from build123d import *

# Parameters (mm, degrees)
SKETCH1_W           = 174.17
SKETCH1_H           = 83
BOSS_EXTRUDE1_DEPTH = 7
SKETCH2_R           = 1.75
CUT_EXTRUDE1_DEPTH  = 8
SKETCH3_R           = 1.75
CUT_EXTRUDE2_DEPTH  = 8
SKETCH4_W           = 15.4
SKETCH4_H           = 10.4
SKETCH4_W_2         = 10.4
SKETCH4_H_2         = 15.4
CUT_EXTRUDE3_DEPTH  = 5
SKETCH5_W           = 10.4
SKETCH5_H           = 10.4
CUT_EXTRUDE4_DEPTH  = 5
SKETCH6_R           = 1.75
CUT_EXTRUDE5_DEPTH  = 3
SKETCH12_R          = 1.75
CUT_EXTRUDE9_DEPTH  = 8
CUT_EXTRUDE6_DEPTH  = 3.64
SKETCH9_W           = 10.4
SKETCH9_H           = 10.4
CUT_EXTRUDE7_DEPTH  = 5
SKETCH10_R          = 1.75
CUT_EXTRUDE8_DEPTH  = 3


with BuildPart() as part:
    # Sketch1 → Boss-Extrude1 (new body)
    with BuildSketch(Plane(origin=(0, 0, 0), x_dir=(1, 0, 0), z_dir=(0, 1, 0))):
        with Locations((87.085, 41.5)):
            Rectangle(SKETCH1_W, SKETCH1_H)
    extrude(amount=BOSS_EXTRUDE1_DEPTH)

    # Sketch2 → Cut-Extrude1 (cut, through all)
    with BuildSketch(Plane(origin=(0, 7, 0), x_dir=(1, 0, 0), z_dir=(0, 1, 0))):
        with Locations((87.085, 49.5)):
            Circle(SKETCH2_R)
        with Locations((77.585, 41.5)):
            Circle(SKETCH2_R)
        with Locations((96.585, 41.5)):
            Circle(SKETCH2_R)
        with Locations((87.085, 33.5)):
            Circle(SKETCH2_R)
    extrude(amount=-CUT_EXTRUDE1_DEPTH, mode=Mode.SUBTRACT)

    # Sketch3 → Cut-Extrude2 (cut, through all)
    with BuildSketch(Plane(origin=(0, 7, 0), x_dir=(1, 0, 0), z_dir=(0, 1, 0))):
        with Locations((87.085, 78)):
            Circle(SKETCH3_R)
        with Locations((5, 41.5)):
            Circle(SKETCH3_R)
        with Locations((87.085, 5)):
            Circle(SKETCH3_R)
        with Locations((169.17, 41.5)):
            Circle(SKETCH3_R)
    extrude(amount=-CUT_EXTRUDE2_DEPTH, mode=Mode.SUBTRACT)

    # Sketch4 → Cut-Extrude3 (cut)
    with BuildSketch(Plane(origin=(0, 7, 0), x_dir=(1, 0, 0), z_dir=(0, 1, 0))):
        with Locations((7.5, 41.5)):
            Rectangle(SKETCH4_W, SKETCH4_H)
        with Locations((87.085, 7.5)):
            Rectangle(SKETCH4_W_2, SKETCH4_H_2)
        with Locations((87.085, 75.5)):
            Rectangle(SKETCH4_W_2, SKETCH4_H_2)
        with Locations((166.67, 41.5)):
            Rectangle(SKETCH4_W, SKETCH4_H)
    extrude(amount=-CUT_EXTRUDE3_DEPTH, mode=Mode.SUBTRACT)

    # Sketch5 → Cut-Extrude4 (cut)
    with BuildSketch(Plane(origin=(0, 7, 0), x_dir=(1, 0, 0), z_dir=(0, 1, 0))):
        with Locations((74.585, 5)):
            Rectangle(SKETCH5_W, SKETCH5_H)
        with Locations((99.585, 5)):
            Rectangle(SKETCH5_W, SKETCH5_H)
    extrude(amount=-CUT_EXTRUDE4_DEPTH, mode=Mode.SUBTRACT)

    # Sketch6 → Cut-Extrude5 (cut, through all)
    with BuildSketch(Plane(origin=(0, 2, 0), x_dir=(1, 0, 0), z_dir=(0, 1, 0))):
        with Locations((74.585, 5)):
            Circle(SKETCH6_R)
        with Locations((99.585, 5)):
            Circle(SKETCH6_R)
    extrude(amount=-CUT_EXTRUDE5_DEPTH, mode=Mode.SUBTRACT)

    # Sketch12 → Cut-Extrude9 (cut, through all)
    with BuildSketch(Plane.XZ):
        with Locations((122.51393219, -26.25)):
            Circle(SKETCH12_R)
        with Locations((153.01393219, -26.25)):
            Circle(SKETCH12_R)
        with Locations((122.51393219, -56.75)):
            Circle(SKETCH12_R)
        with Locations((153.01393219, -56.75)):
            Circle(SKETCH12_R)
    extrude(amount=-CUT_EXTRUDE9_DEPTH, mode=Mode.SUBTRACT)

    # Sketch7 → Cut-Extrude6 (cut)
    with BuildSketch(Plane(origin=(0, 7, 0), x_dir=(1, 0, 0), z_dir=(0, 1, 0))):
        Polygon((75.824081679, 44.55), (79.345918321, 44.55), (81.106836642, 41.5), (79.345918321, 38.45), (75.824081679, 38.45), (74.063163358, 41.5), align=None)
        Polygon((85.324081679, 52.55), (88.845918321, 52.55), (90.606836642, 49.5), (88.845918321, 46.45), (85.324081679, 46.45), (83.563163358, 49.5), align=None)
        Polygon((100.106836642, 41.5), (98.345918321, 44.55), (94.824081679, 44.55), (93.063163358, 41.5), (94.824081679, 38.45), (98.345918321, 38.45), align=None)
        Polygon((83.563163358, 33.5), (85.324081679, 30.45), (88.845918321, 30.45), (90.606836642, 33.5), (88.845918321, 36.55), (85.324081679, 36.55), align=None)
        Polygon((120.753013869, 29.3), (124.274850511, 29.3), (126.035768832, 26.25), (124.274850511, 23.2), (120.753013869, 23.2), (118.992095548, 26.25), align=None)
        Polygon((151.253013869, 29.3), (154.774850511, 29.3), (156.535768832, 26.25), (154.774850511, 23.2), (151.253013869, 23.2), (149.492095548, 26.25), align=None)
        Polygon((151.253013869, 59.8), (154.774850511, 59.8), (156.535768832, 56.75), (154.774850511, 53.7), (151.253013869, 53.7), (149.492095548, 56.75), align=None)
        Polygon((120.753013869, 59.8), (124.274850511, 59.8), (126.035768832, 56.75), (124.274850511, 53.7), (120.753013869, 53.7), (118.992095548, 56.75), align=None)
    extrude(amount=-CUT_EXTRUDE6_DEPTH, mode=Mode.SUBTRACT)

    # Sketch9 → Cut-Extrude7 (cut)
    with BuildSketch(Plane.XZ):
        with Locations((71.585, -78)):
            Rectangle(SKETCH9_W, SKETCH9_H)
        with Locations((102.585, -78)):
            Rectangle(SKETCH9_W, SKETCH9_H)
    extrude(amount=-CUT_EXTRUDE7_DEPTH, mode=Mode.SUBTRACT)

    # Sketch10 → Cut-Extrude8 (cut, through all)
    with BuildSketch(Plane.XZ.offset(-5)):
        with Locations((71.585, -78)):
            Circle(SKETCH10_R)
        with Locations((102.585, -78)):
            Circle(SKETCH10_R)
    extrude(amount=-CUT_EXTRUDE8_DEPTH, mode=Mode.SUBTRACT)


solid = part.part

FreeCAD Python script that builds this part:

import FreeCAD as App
import Part
import Sketcher
from FreeCAD import Vector
Q = App.Units.Quantity


def add_polygon(sketch, points):
    """Adds a closed chain of lines whose ends are joined by coincident constraints."""
    first, n = sketch.GeometryCount, len(points)
    for a, b in zip(points, points[1:] + points[:1]):
        sketch.addGeometry(Part.LineSegment(App.Vector(*a, 0), App.Vector(*b, 0)), False)
    for i in range(n):
        sketch.addConstraint(Sketcher.Constraint("Coincident", first + i, 2, first + (i + 1) % n, 1))

doc = App.newDocument("Part")
body = doc.addObject("PartDesign::Body", "Body")

# Sketch on XZ plane
sketch1 = body.newObject("Sketcher::SketchObject", "Sketch")
sketch1.AttachmentSupport = (doc.getObject("XZ_Plane"), [""])
sketch1.MapMode = "FlatFace"
add_polygon(sketch1, [(0, -83), (0, 0), (174.17, 0), (174.17, -83)])  # lines 0-3
sketch1.addConstraint([
    Sketcher.Constraint("Vertical", 0),
    Sketcher.Constraint("Horizontal", 1),
    Sketcher.Constraint("Vertical", 2),
    Sketcher.Constraint("Horizontal", 3),
    Sketcher.Constraint("Coincident", 0, 2, -1, 1),
    Sketcher.Constraint("DistanceY", 0, 1, 0, 2, Q("83 mm")),
    Sketcher.Constraint("DistanceX", 1, 1, 1, 2, Q("174.17 mm")),
])
pad1 = body.newObject("PartDesign::Pad", "Pad")
pad1.Profile = sketch1
pad1.Length = 7
pad1.Reversed = True

# Sketch on XZ plane
sketch2 = body.newObject("Sketcher::SketchObject", "Sketch001")
sketch2.AttachmentSupport = (doc.getObject("XZ_Plane"), [""])
sketch2.MapMode = "FlatFace"
sketch2.AttachmentOffset = App.Placement(Vector(0, 0, -7), App.Rotation())
sketch2.addGeometry([
    Part.Circle(Vector(87.085, -49.5, 0), Vector(0, 0, 1), 1.75),
    Part.Circle(Vector(77.585, -41.5, 0), Vector(0, 0, 1), 1.75),
    Part.Circle(Vector(96.585, -41.5, 0), Vector(0, 0, 1), 1.75),
    Part.Circle(Vector(87.085, -33.5, 0), Vector(0, 0, 1), 1.75),
], False)
sketch2.addConstraint([
    Sketcher.Constraint("Equal", 0, 1),
    Sketcher.Constraint("Equal", 1, 2),
    Sketcher.Constraint("Equal", 2, 3),
    Sketcher.Constraint("Horizontal", 1, 3, 2, 3),
    Sketcher.Constraint("Vertical", 0, 3, 3, 3),
    Sketcher.Constraint("Diameter", 0, Q("3.5 mm")),
    Sketcher.Constraint("DistanceY", 0, 3, 1, 3, Q("8 mm")),
    Sketcher.Constraint("DistanceX", 1, 3, 2, 3, Q("19 mm")),
    Sketcher.Constraint("DistanceY", 1, 3, 3, 3, Q("8 mm")),
    Sketcher.Constraint("DistanceY", 0, 3, -1, 1, Q("49.5 mm")),
    Sketcher.Constraint("DistanceX", 1, 3, 0, 3, Q("9.5 mm")),
    Sketcher.Constraint("DistanceX", -1, 1, 0, 3, Q("87.085 mm")),
])
pocket1 = body.newObject("PartDesign::Pocket", "Pocket")
pocket1.Profile = sketch2
pocket1.Type = "ThroughAll"
pocket1.Reversed = True

# Sketch on XZ plane
sketch3 = body.newObject("Sketcher::SketchObject", "Sketch002")
sketch3.AttachmentSupport = (doc.getObject("XZ_Plane"), [""])
sketch3.MapMode = "FlatFace"
sketch3.AttachmentOffset = App.Placement(Vector(0, 0, -7), App.Rotation())
sketch3.addGeometry([
    Part.Circle(Vector(87.085, -78, 0), Vector(0, 0, 1), 1.75),
    Part.Circle(Vector(5, -41.5, 0), Vector(0, 0, 1), 1.75),
    Part.Circle(Vector(87.085, -5, 0), Vector(0, 0, 1), 1.75),
    Part.Circle(Vector(169.17, -41.5, 0), Vector(0, 0, 1), 1.75),
], False)
sketch3.addConstraint([
    Sketcher.Constraint("Equal", 0, 1),
    Sketcher.Constraint("Equal", 1, 2),
    Sketcher.Constraint("Equal", 2, 3),
    Sketcher.Constraint("Horizontal", 1, 3, 3, 3),
    Sketcher.Constraint("Vertical", 0, 3, 2, 3),
    Sketcher.Constraint("Diameter", 0, Q("3.5 mm")),
    Sketcher.Constraint("DistanceY", 0, 3, -1, 1, Q("78 mm")),
    Sketcher.Constraint("DistanceX", -1, 1, 1, 3, Q("5 mm")),
    Sketcher.Constraint("DistanceY", 2, 3, -1, 1, Q("5 mm")),
    Sketcher.Constraint("DistanceY", 1, 3, -1, 1, Q("41.5 mm")),
    Sketcher.Constraint("DistanceX", -1, 1, 3, 3, Q("169.17 mm")),
    Sketcher.Constraint("DistanceX", -1, 1, 0, 3, Q("87.085 mm")),
])
pocket2 = body.newObject("PartDesign::Pocket", "Pocket001")
pocket2.Profile = sketch3
pocket2.Type = "ThroughAll"
pocket2.Reversed = True

# Sketch on XZ plane
sketch4 = body.newObject("Sketcher::SketchObject", "Sketch003")
sketch4.AttachmentSupport = (doc.getObject("XZ_Plane"), [""])
sketch4.MapMode = "FlatFace"
sketch4.AttachmentOffset = App.Placement(Vector(0, 0, -7), App.Rotation())
add_polygon(sketch4, [(-0.2, -46.7), (-0.2, -36.3), (15.2, -36.3), (15.2, -46.7)])  # lines 0-3
add_polygon(sketch4, [(81.885, -15.2), (81.885, 0.2), (92.285, 0.2), (92.285, -15.2)])  # lines 4-7
add_polygon(sketch4, [(81.885, -83.2), (81.885, -67.8), (92.285, -67.8), (92.285, -83.2)])  # lines 8-11
add_polygon(sketch4, [(158.97, -46.7), (158.97, -36.3), (174.37, -36.3), (174.37, -46.7)])  # lines 12-15
sketch4.addConstraint([
    Sketcher.Constraint("Vertical", 0),
    Sketcher.Constraint("Horizontal", 1),
    Sketcher.Constraint("Vertical", 2),
    Sketcher.Constraint("Horizontal", 3),
    Sketcher.Constraint("Vertical", 4),
    Sketcher.Constraint("Horizontal", 5),
    Sketcher.Constraint("Vertical", 6),
    Sketcher.Constraint("Horizontal", 7),
    Sketcher.Constraint("Vertical", 8),
    Sketcher.Constraint("Horizontal", 9),
    Sketcher.Constraint("Vertical", 10),
    Sketcher.Constraint("Horizontal", 11),
    Sketcher.Constraint("Vertical", 12),
    Sketcher.Constraint("Horizontal", 13),
    Sketcher.Constraint("Vertical", 14),
    Sketcher.Constraint("Horizontal", 15),
    Sketcher.Constraint("Horizontal", 1, 2, 12, 2),
    Sketcher.Constraint("Horizontal", 3, 2, 14, 2),
    Sketcher.Constraint("Vertical", 7, 2, 8, 2),
    Sketcher.Constraint("Vertical", 6, 2, 9, 2),
    Sketcher.Constraint("Equal", 3, 13),
    Sketcher.Constraint("Equal", 11, 0),
    Sketcher.Constraint("Equal", 15, 4),
    Sketcher.Constraint("Equal", 6, 8),
    Sketcher.Constraint("DistanceX", 1, 1, 1, 2, Q("15.4 mm")),
    Sketcher.Constraint("DistanceX", 5, 1, 5, 2, Q("10.4 mm")),
    Sketcher.Constraint("DistanceY", 8, 2, 4, 2, Q("68 mm")),
    Sketcher.Constraint("DistanceX", 0, 2, -1, 1, Q("0.2 mm")),
    Sketcher.Constraint("DistanceY", 0, 2, -1, 1, Q("36.3 mm")),
    Sketcher.Constraint("DistanceY", -1, 1, 4, 2, Q("0.2 mm")),
    Sketcher.Constraint("DistanceX", -1, 1, 12, 2, Q("158.97 mm")),
    Sketcher.Constraint("DistanceX", -1, 1, 4, 2, Q("81.885 mm")),
])
pocket3 = body.newObject("PartDesign::Pocket", "Pocket002")
pocket3.Profile = sketch4
pocket3.Length = 5
pocket3.Reversed = True

# Sketch on XZ plane
sketch5 = body.newObject("Sketcher::SketchObject", "Sketch004")
sketch5.AttachmentSupport = (doc.getObject("XZ_Plane"), [""])
sketch5.MapMode = "FlatFace"
sketch5.AttachmentOffset = App.Placement(Vector(0, 0, -7), App.Rotation())
add_polygon(sketch5, [(69.385, -10.2), (69.385, 0.2), (79.785, 0.2), (79.785, -10.2)])  # lines 0-3
add_polygon(sketch5, [(94.385, -10.2), (94.385, 0.2), (104.785, 0.2), (104.785, -10.2)])  # lines 4-7
sketch5.addConstraint([
    Sketcher.Constraint("Vertical", 0),
    Sketcher.Constraint("Horizontal", 1),
    Sketcher.Constraint("Vertical", 2),
    Sketcher.Constraint("Horizontal", 3),
    Sketcher.Constraint("Vertical", 4),
    Sketcher.Constraint("Horizontal", 5),
    Sketcher.Constraint("Vertical", 6),
    Sketcher.Constraint("Horizontal", 7),
    Sketcher.Constraint("Horizontal", 1, 2, 4, 2),
    Sketcher.Constraint("Horizontal", 3, 2, 6, 2),
    Sketcher.Constraint("Equal", 3, 5),
    Sketcher.Constraint("Equal", 7, 0),
    Sketcher.Constraint("DistanceX", 1, 1, 1, 2, Q("10.4 mm")),
    Sketcher.Constraint("DistanceX", 0, 2, 4, 2, Q("25 mm")),
    Sketcher.Constraint("DistanceY", -1, 1, 0, 2, Q("0.2 mm")),
    Sketcher.Constraint("DistanceX", -1, 1, 0, 2, Q("69.385 mm")),
])
pocket4 = body.newObject("PartDesign::Pocket", "Pocket003")
pocket4.Profile = sketch5
pocket4.Length = 5
pocket4.Reversed = True

# Sketch on XZ plane
sketch6 = body.newObject("Sketcher::SketchObject", "Sketch005")
sketch6.AttachmentSupport = (doc.getObject("XZ_Plane"), [""])
sketch6.MapMode = "FlatFace"
sketch6.AttachmentOffset = App.Placement(Vector(0, 0, -2), App.Rotation())
sketch6.addGeometry([
    Part.Circle(Vector(74.585, -5, 0), Vector(0, 0, 1), 1.75),
    Part.Circle(Vector(99.585, -5, 0), Vector(0, 0, 1), 1.75),
], False)
sketch6.addConstraint([
    Sketcher.Constraint("Equal", 0, 1),
    Sketcher.Constraint("Horizontal", 0, 3, 1, 3),
    Sketcher.Constraint("Diameter", 0, Q("3.5 mm")),
    Sketcher.Constraint("DistanceY", 0, 3, -1, 1, Q("5 mm")),
    Sketcher.Constraint("DistanceX", 0, 3, 1, 3, Q("25 mm")),
    Sketcher.Constraint("DistanceX", -1, 1, 0, 3, Q("74.585 mm")),
])
pocket5 = body.newObject("PartDesign::Pocket", "Pocket004")
pocket5.Profile = sketch6
pocket5.Type = "ThroughAll"
pocket5.Reversed = True

# Sketch on XZ plane
sketch7 = body.newObject("Sketcher::SketchObject", "Sketch006")
sketch7.AttachmentSupport = (doc.getObject("XZ_Plane"), [""])
sketch7.MapMode = "FlatFace"
sketch7.addGeometry([
    Part.Circle(Vector(122.513932, -26.25, 0), Vector(0, 0, 1), 1.75),
    Part.Circle(Vector(153.013932, -26.25, 0), Vector(0, 0, 1), 1.75),
    Part.Circle(Vector(122.513932, -56.75, 0), Vector(0, 0, 1), 1.75),
    Part.Circle(Vector(153.013932, -56.75, 0), Vector(0, 0, 1), 1.75),
], False)
sketch7.addConstraint([
    Sketcher.Constraint("Equal", 0, 1),
    Sketcher.Constraint("Equal", 1, 2),
    Sketcher.Constraint("Equal", 2, 3),
    Sketcher.Constraint("Horizontal", 0, 3, 1, 3),
    Sketcher.Constraint("Horizontal", 2, 3, 3, 3),
    Sketcher.Constraint("Vertical", 0, 3, 2, 3),
    Sketcher.Constraint("Vertical", 1, 3, 3, 3),
    Sketcher.Constraint("Diameter", 0, Q("3.5 mm")),
    Sketcher.Constraint("DistanceX", 0, 3, 1, 3, Q("30.5 mm")),
    Sketcher.Constraint("DistanceY", 2, 3, 0, 3, Q("30.5 mm")),
    Sketcher.Constraint("DistanceY", 0, 3, -1, 1, Q("26.25 mm")),
    Sketcher.Constraint("DistanceX", -1, 1, 0, 3, Q("122.513932 mm")),
])
pocket6 = body.newObject("PartDesign::Pocket", "Pocket005")
pocket6.Profile = sketch7
pocket6.Type = "ThroughAll"

# Sketch on XZ plane
sketch8 = body.newObject("Sketcher::SketchObject", "Sketch007")
sketch8.AttachmentSupport = (doc.getObject("XZ_Plane"), [""])
sketch8.MapMode = "FlatFace"
sketch8.AttachmentOffset = App.Placement(Vector(0, 0, -7), App.Rotation())
add_polygon(sketch8, [(79.345918, -44.55), (75.824082, -44.55), (74.063163, -41.5), (75.824082, -38.45), (79.345918, -38.45), (81.106837, -41.5)])  # lines 0-5
add_polygon(sketch8, [(88.845918, -52.55), (85.324082, -52.55), (83.563163, -49.5), (85.324082, -46.45), (88.845918, -46.45), (90.606837, -49.5)])  # lines 6-11
add_polygon(sketch8, [(100.106837, -41.5), (98.345918, -44.55), (94.824082, -44.55), (93.063163, -41.5), (94.824082, -38.45), (98.345918, -38.45)])  # lines 12-17
add_polygon(sketch8, [(83.563163, -33.5), (85.324082, -30.45), (88.845918, -30.45), (90.606837, -33.5), (88.845918, -36.55), (85.324082, -36.55)])  # lines 18-23
add_polygon(sketch8, [(124.274851, -29.3), (120.753014, -29.3), (118.992096, -26.25), (120.753014, -23.2), (124.274851, -23.2), (126.035769, -26.25)])  # lines 24-29
add_polygon(sketch8, [(154.774851, -29.3), (151.253014, -29.3), (149.492096, -26.25), (151.253014, -23.2), (154.774851, -23.2), (156.535769, -26.25)])  # lines 30-35
add_polygon(sketch8, [(154.774851, -59.8), (151.253014, -59.8), (149.492096, -56.75), (151.253014, -53.7), (154.774851, -53.7), (156.535769, -56.75)])  # lines 36-41
add_polygon(sketch8, [(124.274851, -59.8), (120.753014, -59.8), (118.992096, -56.75), (120.753014, -53.7), (124.274851, -53.7), (126.035769, -56.75)])  # lines 42-47
sketch8.addConstraint([
    Sketcher.Constraint("Horizontal", 0),
    Sketcher.Constraint("Horizontal", 3),
    Sketcher.Constraint("Horizontal", 6),
    Sketcher.Constraint("Horizontal", 9),
    Sketcher.Constraint("Horizontal", 13),
    Sketcher.Constraint("Horizontal", 16),
    Sketcher.Constraint("Horizontal", 19),
    Sketcher.Constraint("Horizontal", 22),
    Sketcher.Constraint("Horizontal", 24),
    Sketcher.Constraint("Horizontal", 27),
    Sketcher.Constraint("Horizontal", 30),
    Sketcher.Constraint("Horizontal", 33),
    Sketcher.Constraint("Horizontal", 36),
    Sketcher.Constraint("Horizontal", 39),
    Sketcher.Constraint("Horizontal", 42),
    Sketcher.Constraint("Horizontal", 45),
    Sketcher.Constraint("Parallel", 1, 4),
    Sketcher.Constraint("Parallel", 2, 5),
    Sketcher.Constraint("Parallel", 4, 7),
    Sketcher.Constraint("Parallel", 5, 8),
    Sketcher.Constraint("Parallel", 7, 10),
    Sketcher.Constraint("Parallel", 8, 11),
    Sketcher.Constraint("Parallel", 11, 12),
    Sketcher.Constraint("Parallel", 10, 14),
    Sketcher.Constraint("Parallel", 12, 15),
    Sketcher.Constraint("Parallel", 14, 17),
    Sketcher.Constraint("Parallel", 15, 18),
    Sketcher.Constraint("Parallel", 17, 20),
    Sketcher.Constraint("Parallel", 18, 21),
    Sketcher.Constraint("Parallel", 20, 23),
    Sketcher.Constraint("Parallel", 23, 25),
    Sketcher.Constraint("Parallel", 21, 26),
    Sketcher.Constraint("Parallel", 25, 28),
    Sketcher.Constraint("Parallel", 26, 29),
    Sketcher.Constraint("Parallel", 28, 31),
    Sketcher.Constraint("Parallel", 29, 32),
    Sketcher.Constraint("Parallel", 31, 34),
    Sketcher.Constraint("Parallel", 32, 35),
    Sketcher.Constraint("Parallel", 34, 37),
    Sketcher.Constraint("Parallel", 35, 38),
    Sketcher.Constraint("Parallel", 37, 40),
    Sketcher.Constraint("Parallel", 38, 41),
    Sketcher.Constraint("Parallel", 40, 43),
    Sketcher.Constraint("Parallel", 41, 44),
    Sketcher.Constraint("Parallel", 43, 46),
    Sketcher.Constraint("Parallel", 44, 47),
    Sketcher.Constraint("Horizontal", 1, 2, 4, 2),
    Sketcher.Constraint("Horizontal", 7, 2, 10, 2),
    Sketcher.Constraint("Horizontal", 5, 2, 12, 2),
    Sketcher.Constraint("Horizontal", 4, 2, 14, 2),
    Sketcher.Constraint("Horizontal", 3, 2, 15, 2),
    Sketcher.Constraint("Horizontal", 14, 2, 17, 2),
    Sketcher.Constraint("Horizontal", 20, 2, 23, 2),
    Sketcher.Constraint("Horizontal", 25, 2, 28, 2),
    Sketcher.Constraint("Horizontal", 29, 2, 30, 2),
    Sketcher.Constraint("Horizontal", 28, 2, 31, 2),
    Sketcher.Constraint("Horizontal", 27, 2, 32, 2),
    Sketcher.Constraint("Horizontal", 31, 2, 34, 2),
    Sketcher.Constraint("Horizontal", 37, 2, 40, 2),
    Sketcher.Constraint("Horizontal", 41, 2, 42, 2),
    Sketcher.Constraint("Horizontal", 40, 2, 43, 2),
    Sketcher.Constraint("Horizontal", 39, 2, 44, 2),
    Sketcher.Constraint("Horizontal", 43, 2, 46, 2),
    Sketcher.Constraint("Vertical", 0, 2, 2, 2),
    Sketcher.Constraint("Vertical", 3, 2, 5, 2),
    Sketcher.Constraint("Vertical", 6, 2, 8, 2),
    Sketcher.Constraint("Vertical", 8, 2, 18, 2),
    Sketcher.Constraint("Vertical", 11, 2, 19, 2),
    Sketcher.Constraint("Vertical", 10, 2, 20, 2),
    Sketcher.Constraint("Vertical", 19, 2, 21, 2),
    Sketcher.Constraint("Vertical", 24, 2, 26, 2),
    Sketcher.Constraint("Vertical", 32, 2, 36, 2),
    Sketcher.Constraint("Vertical", 31, 2, 37, 2),
    Sketcher.Constraint("Vertical", 36, 2, 38, 2),
    Sketcher.Constraint("Vertical", 35, 2, 39, 2),
    Sketcher.Constraint("Vertical", 26, 2, 42, 2),
    Sketcher.Constraint("Vertical", 29, 2, 45, 2),
    Sketcher.Constraint("Equal", 3, 6),
    Sketcher.Constraint("Equal", 9, 13),
    Sketcher.Constraint("Equal", 22, 24),
    Sketcher.Constraint("Equal", 27, 30),
    Sketcher.Constraint("Equal", 5, 7),
    Sketcher.Constraint("Equal", 23, 25),
    Sketcher.Constraint("Angle", 1, Q("120 deg")),
    Sketcher.Constraint("DistanceY", 6, 2, 5, 2, Q("8 mm")),
    Sketcher.Constraint("DistanceY", 3, 2, 18, 2, Q("8 mm")),
    Sketcher.Constraint("DistanceY", 1, 2, -1, 1, Q("41.5 mm")),
    Sketcher.Constraint("DistanceY", 24, 2, -1, 1, Q("29.3 mm")),
    Sketcher.Constraint("DistanceY", 26, 2, -1, 1, Q("23.2 mm")),
    Sketcher.Constraint("DistanceY", 36, 2, -1, 1, Q("59.8 mm")),
    Sketcher.Constraint("DistanceX", 0, 2, 6, 2, Q("9.5 mm")),
    Sketcher.Constraint("DistanceX", 9, 2, 12, 2, Q("9.5 mm")),
    Sketcher.Constraint("DistanceX", 24, 2, 30, 2, Q("30.5 mm")),
    Sketcher.Constraint("DistanceX", 0, 2, 0, 1, Q("3.521837 mm")),
    Sketcher.Constraint("DistanceX", -1, 1, 0, 2, Q("75.824082 mm")),
    Sketcher.Constraint("DistanceX", -1, 1, 27, 2, Q("124.274851 mm")),
])
pocket7 = body.newObject("PartDesign::Pocket", "Pocket006")
pocket7.Profile = sketch8
pocket7.Length = 3.64
pocket7.Reversed = True

# Sketch on XZ plane
sketch9 = body.newObject("Sketcher::SketchObject", "Sketch008")
sketch9.AttachmentSupport = (doc.getObject("XZ_Plane"), [""])
sketch9.MapMode = "FlatFace"
add_polygon(sketch9, [(66.385, -72.8), (66.385, -83.2), (76.785, -83.2), (76.785, -72.8)])  # lines 0-3
add_polygon(sketch9, [(97.385, -72.8), (97.385, -83.2), (107.785, -83.2), (107.785, -72.8)])  # lines 4-7
sketch9.addConstraint([
    Sketcher.Constraint("Vertical", 0),
    Sketcher.Constraint("Horizontal", 1),
    Sketcher.Constraint("Vertical", 2),
    Sketcher.Constraint("Horizontal", 3),
    Sketcher.Constraint("Vertical", 4),
    Sketcher.Constraint("Horizontal", 5),
    Sketcher.Constraint("Vertical", 6),
    Sketcher.Constraint("Horizontal", 7),
    Sketcher.Constraint("Horizontal", 1, 2, 4, 2),
    Sketcher.Constraint("Horizontal", 3, 2, 6, 2),
    Sketcher.Constraint("Equal", 3, 5),
    Sketcher.Constraint("Equal", 7, 0),
    Sketcher.Constraint("DistanceX", 1, 1, 1, 2, Q("10.4 mm")),
    Sketcher.Constraint("DistanceX", 0, 2, 4, 2, Q("31 mm")),
    Sketcher.Constraint("DistanceY", 0, 2, -1, 1, Q("83.2 mm")),
    Sketcher.Constraint("DistanceX", -1, 1, 0, 2, Q("66.385 mm")),
])
pocket8 = body.newObject("PartDesign::Pocket", "Pocket007")
pocket8.Profile = sketch9
pocket8.Length = 5

# Sketch on XZ plane
sketch10 = body.newObject("Sketcher::SketchObject", "Sketch009")
sketch10.AttachmentSupport = (doc.getObject("XZ_Plane"), [""])
sketch10.MapMode = "FlatFace"
sketch10.AttachmentOffset = App.Placement(Vector(0, 0, -5), App.Rotation())
sketch10.addGeometry([
    Part.Circle(Vector(71.585, -78, 0), Vector(0, 0, 1), 1.75),
    Part.Circle(Vector(102.585, -78, 0), Vector(0, 0, 1), 1.75),
], False)
sketch10.addConstraint([
    Sketcher.Constraint("Equal", 0, 1),
    Sketcher.Constraint("Horizontal", 0, 3, 1, 3),
    Sketcher.Constraint("Diameter", 0, Q("3.5 mm")),
    Sketcher.Constraint("DistanceY", 0, 3, -1, 1, Q("78 mm")),
    Sketcher.Constraint("DistanceX", 0, 3, 1, 3, Q("31 mm")),
    Sketcher.Constraint("DistanceX", -1, 1, 0, 3, Q("71.585 mm")),
])
pocket9 = body.newObject("PartDesign::Pocket", "Pocket008")
pocket9.Profile = sketch10
pocket9.Type = "ThroughAll"

doc.recompute()
